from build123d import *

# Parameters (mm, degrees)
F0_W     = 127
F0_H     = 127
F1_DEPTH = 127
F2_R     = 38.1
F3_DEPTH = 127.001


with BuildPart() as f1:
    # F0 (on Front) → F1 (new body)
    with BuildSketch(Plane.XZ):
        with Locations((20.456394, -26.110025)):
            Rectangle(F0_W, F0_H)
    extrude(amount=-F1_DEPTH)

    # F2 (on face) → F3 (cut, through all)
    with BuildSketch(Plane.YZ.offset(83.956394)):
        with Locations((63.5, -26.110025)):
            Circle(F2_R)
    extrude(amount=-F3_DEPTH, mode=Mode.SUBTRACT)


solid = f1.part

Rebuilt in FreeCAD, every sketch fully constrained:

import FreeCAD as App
import Part
import Sketcher

V = App.Vector
Q = App.Units.Quantity


def add_polygon(sketch, points):
    """Adds a closed chain of lines whose ends are joined by coincident constraints."""
    first, n = sketch.GeometryCount, len(points)
    for a, b in zip(points, points[1:] + points[:1]):
        sketch.addGeometry(Part.LineSegment(App.Vector(*a, 0), App.Vector(*b, 0)), False)
    for i in range(n):
        sketch.addConstraint(Sketcher.Constraint("Coincident", first + i, 2, first + (i + 1) % n, 1))

doc = App.newDocument("Part")
body = doc.addObject("PartDesign::Body", "Body")

# Sketch on XZ plane
sketch1 = body.newObject("Sketcher::SketchObject", "Sketch")
sketch1.AttachmentSupport = (doc.getObject("XZ_Plane"), [""])
sketch1.MapMode = "FlatFace"
add_polygon(sketch1, [(-43, 37), (-43, -90), (84, -90), (84, 37)])  # lines 0-3
sketch1.addConstraint(Sketcher.Constraint("Vertical", 0))
sketch1.addConstraint(Sketcher.Constraint("Horizontal", 1))
sketch1.addConstraint(Sketcher.Constraint("Vertical", 2))
sketch1.addConstraint(Sketcher.Constraint("Horizontal", 3))
sketch1.addConstraint(Sketcher.Constraint("Equal", 3, 0))
sketch1.addConstraint(Sketcher.Constraint("DistanceX", 1, 1, 1, 2, Q("5 in")))
sketch1.addConstraint(Sketcher.Constraint("DistanceX", 0, 2, -1, 1, Q("43.043606 mm")))
sketch1.addConstraint(Sketcher.Constraint("DistanceY", 0, 2, -1, 1, Q("89.610025 mm")))
pad1 = body.newObject("PartDesign::Pad", "Pad")
pad1.Profile = sketch1
pad1.Length = Q("5 in")
pad1.Reversed = True

# Sketch on YZ plane
sketch2 = body.newObject("Sketcher::SketchObject", "Sketch001")
sketch2.AttachmentSupport = (doc.getObject("YZ_Plane"), [""])
sketch2.MapMode = "FlatFace"
sketch2.AttachmentOffset = App.Placement(V(0, 0, 83.956394), App.Rotation())
sketch2.addGeometry(Part.Circle(V(64, -26, 0), V(0, 0, 1), 38), False)
sketch2.addConstraint(Sketcher.Constraint("Diameter", 0, Q("3 in")))
sketch2.addConstraint(Sketcher.Constraint("DistanceX", -1, 1, 0, 3, Q("2.5 in")))
sketch2.addConstraint(Sketcher.Constraint("DistanceY", 0, 3, -1, 1, Q("26.110025 mm")))
pocket1 = body.newObject("PartDesign::Pocket", "Pocket")
pocket1.Profile = sketch2
pocket1.Type = "ThroughAll"

doc.recompute()
